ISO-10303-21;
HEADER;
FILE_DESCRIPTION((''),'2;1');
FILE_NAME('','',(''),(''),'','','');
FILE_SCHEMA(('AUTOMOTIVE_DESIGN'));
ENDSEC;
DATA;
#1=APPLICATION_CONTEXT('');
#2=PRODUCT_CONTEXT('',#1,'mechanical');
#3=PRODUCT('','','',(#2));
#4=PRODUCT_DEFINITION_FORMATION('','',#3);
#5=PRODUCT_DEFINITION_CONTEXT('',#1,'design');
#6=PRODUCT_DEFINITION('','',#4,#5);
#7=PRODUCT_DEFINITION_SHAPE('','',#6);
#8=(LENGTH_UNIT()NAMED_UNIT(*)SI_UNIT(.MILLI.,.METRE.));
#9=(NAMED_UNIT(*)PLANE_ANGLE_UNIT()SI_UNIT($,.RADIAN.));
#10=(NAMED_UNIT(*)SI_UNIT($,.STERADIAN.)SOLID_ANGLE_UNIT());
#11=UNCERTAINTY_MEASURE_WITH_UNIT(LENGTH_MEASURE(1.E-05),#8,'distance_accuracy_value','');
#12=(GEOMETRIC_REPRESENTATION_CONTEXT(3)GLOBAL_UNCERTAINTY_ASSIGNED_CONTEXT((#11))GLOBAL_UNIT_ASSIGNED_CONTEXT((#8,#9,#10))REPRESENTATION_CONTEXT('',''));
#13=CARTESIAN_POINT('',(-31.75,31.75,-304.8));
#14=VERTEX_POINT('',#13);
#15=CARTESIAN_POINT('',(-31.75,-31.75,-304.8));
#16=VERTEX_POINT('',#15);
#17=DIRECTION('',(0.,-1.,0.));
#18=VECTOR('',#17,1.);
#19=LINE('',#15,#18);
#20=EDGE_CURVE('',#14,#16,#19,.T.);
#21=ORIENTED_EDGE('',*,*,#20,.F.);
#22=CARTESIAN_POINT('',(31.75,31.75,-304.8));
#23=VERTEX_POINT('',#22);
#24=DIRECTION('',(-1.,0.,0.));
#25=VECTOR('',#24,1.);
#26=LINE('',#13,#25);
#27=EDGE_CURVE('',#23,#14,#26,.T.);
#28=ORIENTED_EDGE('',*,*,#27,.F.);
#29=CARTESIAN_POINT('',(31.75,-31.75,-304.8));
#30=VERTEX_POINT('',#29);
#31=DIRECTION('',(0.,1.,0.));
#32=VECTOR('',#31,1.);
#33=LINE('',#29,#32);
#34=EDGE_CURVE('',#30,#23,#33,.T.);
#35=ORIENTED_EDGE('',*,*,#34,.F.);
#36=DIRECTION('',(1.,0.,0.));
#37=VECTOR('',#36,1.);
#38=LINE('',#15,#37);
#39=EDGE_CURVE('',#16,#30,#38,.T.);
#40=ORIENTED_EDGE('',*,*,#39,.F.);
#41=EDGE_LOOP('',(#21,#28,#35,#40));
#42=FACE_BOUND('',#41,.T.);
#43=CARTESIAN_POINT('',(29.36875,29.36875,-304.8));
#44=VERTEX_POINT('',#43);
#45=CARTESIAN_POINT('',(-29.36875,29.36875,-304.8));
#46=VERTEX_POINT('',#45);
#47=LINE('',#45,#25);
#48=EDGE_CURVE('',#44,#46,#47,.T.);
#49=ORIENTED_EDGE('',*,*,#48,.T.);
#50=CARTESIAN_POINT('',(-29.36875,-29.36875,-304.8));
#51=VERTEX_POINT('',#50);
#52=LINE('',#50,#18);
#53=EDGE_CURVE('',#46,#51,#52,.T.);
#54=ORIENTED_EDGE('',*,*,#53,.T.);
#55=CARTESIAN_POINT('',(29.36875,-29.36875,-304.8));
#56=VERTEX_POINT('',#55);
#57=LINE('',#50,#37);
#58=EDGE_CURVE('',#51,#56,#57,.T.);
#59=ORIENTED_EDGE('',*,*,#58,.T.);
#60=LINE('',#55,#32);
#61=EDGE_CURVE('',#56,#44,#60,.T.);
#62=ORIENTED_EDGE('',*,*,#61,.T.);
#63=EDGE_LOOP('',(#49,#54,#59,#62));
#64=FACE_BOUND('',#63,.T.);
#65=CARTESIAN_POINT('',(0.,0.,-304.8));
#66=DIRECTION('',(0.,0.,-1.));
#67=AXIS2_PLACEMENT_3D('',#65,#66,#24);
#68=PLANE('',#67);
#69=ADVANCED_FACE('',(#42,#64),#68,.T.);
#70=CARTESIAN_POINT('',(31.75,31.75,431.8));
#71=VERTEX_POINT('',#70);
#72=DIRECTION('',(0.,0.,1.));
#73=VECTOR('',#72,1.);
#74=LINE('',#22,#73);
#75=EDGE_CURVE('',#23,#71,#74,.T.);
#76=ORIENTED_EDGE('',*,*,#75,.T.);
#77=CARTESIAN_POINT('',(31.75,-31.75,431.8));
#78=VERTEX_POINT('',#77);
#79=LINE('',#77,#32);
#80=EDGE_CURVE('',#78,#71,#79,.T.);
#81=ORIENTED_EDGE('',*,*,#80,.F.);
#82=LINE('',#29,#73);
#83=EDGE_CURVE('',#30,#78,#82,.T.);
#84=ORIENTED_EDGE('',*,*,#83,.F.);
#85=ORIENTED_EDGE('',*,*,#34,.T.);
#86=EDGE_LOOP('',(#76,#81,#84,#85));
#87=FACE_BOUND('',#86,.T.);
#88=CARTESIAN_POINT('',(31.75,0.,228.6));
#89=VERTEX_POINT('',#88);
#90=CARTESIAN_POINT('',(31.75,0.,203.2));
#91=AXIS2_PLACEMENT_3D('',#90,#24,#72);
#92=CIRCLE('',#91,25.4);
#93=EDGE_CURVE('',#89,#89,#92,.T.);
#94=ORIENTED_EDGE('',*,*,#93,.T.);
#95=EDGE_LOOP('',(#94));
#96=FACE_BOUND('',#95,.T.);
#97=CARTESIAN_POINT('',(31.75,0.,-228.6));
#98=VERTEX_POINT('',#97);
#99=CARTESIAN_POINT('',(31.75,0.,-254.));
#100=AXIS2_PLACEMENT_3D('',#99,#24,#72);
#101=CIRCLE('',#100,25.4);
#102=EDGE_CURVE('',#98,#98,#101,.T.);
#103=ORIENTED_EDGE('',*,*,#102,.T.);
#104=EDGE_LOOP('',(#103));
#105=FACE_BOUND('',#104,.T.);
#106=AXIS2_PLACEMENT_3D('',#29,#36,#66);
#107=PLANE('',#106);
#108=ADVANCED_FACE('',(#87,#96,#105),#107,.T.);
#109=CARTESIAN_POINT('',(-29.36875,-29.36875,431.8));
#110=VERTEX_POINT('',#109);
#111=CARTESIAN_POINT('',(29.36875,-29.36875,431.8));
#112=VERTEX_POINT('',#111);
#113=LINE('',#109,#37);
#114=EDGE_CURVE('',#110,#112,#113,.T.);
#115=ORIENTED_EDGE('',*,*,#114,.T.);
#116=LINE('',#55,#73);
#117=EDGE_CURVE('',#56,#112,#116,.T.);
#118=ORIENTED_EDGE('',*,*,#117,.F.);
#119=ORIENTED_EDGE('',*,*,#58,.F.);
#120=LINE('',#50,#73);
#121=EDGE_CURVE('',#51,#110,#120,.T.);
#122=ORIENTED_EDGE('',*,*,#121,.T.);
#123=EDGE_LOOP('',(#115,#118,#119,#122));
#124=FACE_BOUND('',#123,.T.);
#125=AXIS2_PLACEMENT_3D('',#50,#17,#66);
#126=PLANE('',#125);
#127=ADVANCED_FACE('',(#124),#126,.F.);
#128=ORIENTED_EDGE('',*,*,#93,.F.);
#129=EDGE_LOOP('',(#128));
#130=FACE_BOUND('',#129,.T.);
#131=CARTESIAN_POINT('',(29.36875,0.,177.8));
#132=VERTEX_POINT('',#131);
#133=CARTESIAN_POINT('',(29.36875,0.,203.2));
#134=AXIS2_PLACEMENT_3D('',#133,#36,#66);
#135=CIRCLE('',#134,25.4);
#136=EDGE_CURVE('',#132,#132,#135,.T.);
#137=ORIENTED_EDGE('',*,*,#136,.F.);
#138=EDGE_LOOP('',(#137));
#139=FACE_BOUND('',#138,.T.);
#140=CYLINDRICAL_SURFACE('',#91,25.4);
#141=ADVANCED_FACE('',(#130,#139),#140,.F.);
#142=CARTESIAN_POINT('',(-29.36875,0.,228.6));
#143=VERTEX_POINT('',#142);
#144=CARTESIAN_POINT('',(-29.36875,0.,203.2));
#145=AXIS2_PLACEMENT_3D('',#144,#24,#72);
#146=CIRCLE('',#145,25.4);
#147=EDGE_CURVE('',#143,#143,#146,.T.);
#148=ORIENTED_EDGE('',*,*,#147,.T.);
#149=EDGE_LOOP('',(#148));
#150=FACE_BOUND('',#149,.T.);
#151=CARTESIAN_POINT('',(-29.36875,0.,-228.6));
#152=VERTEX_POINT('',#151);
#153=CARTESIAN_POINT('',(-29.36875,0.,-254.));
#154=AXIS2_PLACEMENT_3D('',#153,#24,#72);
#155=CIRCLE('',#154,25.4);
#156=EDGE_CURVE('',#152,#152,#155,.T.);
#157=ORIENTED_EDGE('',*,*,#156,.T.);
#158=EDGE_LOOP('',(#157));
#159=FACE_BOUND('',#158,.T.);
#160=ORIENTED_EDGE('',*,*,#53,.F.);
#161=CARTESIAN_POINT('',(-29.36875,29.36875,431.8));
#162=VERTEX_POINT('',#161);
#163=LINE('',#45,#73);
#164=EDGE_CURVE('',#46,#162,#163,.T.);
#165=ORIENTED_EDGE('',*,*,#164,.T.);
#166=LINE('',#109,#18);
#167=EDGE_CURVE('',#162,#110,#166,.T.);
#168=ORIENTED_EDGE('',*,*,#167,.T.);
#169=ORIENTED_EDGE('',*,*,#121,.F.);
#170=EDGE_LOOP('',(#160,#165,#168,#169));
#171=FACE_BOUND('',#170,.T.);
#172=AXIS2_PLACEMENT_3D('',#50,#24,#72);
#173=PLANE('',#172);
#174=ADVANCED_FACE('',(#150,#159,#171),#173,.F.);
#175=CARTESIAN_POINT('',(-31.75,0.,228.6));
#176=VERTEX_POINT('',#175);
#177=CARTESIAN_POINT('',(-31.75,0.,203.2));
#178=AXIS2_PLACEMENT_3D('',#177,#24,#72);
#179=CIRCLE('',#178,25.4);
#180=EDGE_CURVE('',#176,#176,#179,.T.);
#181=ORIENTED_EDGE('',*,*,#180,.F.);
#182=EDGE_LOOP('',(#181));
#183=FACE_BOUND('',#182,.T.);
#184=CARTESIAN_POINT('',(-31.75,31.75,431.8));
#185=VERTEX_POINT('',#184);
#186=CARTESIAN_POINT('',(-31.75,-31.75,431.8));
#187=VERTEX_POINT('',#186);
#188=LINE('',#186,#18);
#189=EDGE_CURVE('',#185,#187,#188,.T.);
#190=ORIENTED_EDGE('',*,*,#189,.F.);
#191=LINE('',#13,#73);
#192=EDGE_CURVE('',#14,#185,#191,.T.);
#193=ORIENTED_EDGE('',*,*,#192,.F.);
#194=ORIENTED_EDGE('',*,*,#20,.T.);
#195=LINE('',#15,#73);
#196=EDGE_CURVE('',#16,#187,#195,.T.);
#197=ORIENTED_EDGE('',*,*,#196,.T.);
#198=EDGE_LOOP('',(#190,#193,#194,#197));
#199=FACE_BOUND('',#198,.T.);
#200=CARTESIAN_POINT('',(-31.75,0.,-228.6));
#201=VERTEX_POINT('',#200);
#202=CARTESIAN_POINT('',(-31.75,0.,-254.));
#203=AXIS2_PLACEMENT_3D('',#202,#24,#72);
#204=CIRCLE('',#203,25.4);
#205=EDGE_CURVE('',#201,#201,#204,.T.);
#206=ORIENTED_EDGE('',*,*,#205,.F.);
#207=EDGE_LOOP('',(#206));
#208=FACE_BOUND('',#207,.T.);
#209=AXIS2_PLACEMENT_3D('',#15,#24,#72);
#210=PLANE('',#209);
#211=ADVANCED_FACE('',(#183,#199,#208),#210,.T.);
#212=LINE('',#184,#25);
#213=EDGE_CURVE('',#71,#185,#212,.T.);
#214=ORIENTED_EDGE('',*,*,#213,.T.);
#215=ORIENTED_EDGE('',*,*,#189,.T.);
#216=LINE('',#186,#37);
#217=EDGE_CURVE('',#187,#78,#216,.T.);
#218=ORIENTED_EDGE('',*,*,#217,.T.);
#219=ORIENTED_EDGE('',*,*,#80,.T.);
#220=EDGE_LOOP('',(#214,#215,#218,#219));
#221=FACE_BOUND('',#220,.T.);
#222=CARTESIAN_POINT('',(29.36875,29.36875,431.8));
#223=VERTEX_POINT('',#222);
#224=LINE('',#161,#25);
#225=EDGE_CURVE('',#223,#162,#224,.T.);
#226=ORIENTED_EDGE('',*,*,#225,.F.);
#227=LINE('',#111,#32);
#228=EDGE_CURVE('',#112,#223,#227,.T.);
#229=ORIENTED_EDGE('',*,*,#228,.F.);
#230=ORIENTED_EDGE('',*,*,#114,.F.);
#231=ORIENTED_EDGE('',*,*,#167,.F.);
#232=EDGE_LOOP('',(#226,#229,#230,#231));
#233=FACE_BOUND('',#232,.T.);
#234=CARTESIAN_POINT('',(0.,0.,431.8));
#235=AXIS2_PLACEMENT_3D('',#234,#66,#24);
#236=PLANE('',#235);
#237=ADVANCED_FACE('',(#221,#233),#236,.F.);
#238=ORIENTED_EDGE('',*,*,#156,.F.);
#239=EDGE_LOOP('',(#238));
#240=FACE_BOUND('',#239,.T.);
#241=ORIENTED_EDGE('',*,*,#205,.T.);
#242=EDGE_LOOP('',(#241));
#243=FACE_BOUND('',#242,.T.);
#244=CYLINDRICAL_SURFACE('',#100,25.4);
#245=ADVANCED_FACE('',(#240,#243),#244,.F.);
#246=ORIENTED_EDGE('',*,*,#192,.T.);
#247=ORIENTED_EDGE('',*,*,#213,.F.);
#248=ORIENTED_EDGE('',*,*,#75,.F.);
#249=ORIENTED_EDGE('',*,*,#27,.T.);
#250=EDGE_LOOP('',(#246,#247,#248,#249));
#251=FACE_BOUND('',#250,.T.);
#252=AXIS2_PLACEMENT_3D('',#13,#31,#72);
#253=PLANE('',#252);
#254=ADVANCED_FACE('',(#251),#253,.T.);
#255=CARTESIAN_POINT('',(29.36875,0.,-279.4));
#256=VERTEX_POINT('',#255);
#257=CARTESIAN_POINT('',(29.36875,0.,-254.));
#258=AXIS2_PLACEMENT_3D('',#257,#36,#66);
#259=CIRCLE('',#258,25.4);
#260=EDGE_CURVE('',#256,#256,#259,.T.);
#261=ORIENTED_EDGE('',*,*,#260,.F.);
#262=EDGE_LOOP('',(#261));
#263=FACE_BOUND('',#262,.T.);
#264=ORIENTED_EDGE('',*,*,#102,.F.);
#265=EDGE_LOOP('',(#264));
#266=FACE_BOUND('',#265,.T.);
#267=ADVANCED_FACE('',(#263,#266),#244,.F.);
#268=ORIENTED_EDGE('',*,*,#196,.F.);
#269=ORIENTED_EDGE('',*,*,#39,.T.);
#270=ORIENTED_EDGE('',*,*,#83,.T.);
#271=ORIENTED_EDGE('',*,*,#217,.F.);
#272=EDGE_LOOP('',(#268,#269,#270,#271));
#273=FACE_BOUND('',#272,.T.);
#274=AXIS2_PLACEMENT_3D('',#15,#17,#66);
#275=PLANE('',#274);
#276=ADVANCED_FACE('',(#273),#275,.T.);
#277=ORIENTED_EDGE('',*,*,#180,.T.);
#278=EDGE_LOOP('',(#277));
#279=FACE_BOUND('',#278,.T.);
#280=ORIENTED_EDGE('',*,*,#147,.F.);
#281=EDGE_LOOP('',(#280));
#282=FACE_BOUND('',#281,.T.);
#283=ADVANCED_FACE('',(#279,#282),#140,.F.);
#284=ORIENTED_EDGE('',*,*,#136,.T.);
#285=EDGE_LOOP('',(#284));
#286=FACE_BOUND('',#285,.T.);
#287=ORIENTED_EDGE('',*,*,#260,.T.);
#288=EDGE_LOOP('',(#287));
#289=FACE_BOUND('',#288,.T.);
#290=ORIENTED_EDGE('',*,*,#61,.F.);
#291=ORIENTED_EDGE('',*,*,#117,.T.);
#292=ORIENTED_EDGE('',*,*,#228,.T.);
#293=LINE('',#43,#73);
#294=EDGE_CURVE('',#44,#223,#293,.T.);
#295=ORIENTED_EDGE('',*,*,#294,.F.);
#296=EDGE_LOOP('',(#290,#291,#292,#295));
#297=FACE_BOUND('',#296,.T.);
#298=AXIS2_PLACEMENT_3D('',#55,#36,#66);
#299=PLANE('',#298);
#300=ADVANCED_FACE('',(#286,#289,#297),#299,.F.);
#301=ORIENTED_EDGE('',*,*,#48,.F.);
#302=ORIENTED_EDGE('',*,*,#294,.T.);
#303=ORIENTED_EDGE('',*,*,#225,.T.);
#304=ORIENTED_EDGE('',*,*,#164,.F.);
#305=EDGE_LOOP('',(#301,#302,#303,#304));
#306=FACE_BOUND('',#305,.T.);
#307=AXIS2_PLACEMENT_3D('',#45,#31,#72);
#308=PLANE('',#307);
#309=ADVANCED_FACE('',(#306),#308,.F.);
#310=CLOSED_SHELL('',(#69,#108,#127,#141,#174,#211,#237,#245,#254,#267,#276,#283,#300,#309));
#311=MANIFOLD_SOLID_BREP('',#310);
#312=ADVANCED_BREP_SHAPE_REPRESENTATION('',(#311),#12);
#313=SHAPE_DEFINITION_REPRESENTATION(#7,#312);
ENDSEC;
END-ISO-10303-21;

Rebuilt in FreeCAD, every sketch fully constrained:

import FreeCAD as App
import Part
import Sketcher

V = App.Vector
Q = App.Units.Quantity


def add_polygon(sketch, points):
    """Adds a closed chain of lines whose ends are joined by coincident constraints."""
    first, n = sketch.GeometryCount, len(points)
    for a, b in zip(points, points[1:] + points[:1]):
        sketch.addGeometry(Part.LineSegment(App.Vector(*a, 0), App.Vector(*b, 0)), False)
    for i in range(n):
        sketch.addConstraint(Sketcher.Constraint("Coincident", first + i, 2, first + (i + 1) % n, 1))

doc = App.newDocument("Part")
body = doc.addObject("PartDesign::Body", "Body")

sketch1 = body.newObject("Sketcher::SketchObject", "Sketch")
sketch1.AttachmentSupport = (doc.getObject("XY_Plane"), [""])
sketch1.MapMode = "FlatFace"
add_polygon(sketch1, [(-32, 32), (-32, -32), (32, -32), (32, 32)])
add_polygon(sketch1, [(29, -29), (-29, -29), (-29, 29), (29, 29)])
sketch1.addConstraint([
    Sketcher.Constraint("Vertical", 0),
    Sketcher.Constraint("Horizontal", 1),
    Sketcher.Constraint("Vertical", 2),
    Sketcher.Constraint("Horizontal", 3),
    Sketcher.Constraint("Horizontal", 4),
    Sketcher.Constraint("Vertical", 5),
    Sketcher.Constraint("Horizontal", 6),
    Sketcher.Constraint("Vertical", 7),
    Sketcher.Constraint("Symmetric", 0, 2, 2, 2, -1, 1),
    Sketcher.Constraint("Symmetric", 4, 2, 6, 2, -1, 1),
    Sketcher.Constraint("Equal", 3, 0),
    Sketcher.Constraint("Equal", 6, 5),
    Sketcher.Constraint("DistanceX", 1, 1, 1, 2, Q("2.5 in")),
    Sketcher.Constraint("DistanceX", 4, 2, 4, 1, Q("2.3125 in")),
])
pad1 = body.newObject("PartDesign::Pad", "Pad")
pad1.Profile = sketch1
pad1.Type = "TwoLengths"
pad1.Length = Q("17 in")
pad1.Length2 = Q("12 in")

sketch2 = body.newObject("Sketcher::SketchObject", "Sketch001")
sketch2.AttachmentSupport = (doc.getObject("YZ_Plane"), [""])
sketch2.MapMode = "FlatFace"
sketch2.AttachmentOffset = App.Placement(V(0, 0, -1.25 * 25.4), App.Rotation())
sketch2.addGeometry([
    Part.Circle(V(0, -254, 0), V(0, 0, 1), 25),
    Part.Circle(V(0, 203, 0), V(0, 0, 1), 25),
], False)
sketch2.addConstraint([
    Sketcher.Constraint("Equal", 0, 1),
    Sketcher.Constraint("PointOnObject", 0, 3, -2),
    Sketcher.Constraint("PointOnObject", 1, 3, -2),
    Sketcher.Constraint("Diameter", 0, Q("2 in")),
    Sketcher.Constraint("DistanceY", 0, 3, -1, 1, Q("10 in")),
    Sketcher.Constraint("DistanceY", -1, 1, 1, 3, Q("8 in")),
])
pocket1 = body.newObject("PartDesign::Pocket", "Pocket")
pocket1.Profile = sketch2
pocket1.Type = "ThroughAll"
pocket1.Reversed = True

doc.recompute()
